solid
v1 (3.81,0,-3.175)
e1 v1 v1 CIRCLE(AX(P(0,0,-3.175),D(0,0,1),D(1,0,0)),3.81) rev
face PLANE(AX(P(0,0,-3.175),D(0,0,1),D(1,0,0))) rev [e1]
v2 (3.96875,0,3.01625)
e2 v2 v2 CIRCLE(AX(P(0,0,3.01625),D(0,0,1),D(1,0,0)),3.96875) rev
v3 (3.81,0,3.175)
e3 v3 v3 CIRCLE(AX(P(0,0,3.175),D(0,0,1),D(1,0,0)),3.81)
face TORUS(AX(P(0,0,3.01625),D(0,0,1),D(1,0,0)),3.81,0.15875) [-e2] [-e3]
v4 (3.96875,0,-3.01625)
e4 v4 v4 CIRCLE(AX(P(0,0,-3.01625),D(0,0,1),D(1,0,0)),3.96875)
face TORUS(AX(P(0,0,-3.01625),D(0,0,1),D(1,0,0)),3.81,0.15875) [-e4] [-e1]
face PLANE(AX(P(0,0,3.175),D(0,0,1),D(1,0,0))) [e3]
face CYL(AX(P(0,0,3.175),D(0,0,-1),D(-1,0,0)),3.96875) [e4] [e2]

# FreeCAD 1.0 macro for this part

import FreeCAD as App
import Part
import Sketcher
Q = App.Units.Quantity


def edges_at(feature, points):
    """Names of the edges that pass closest to the given points."""
    edges = feature.Shape.Edges
    near = lambda p: min(range(len(edges)), key=lambda i: edges[i].distToShape(Part.Vertex(*p))[0])
    return sorted({f"Edge{near(p) + 1}" for p in points})

doc = App.newDocument("Part")
body = doc.addObject("PartDesign::Body", "Body")

sketch1 = body.newObject("Sketcher::SketchObject", "Sketch")
sketch1.AttachmentSupport = (doc.getObject("XY_Plane"), [""])
sketch1.MapMode = "FlatFace"
sketch1.addGeometry(Part.Circle(App.Vector(0, 0, 0), App.Vector(0, 0, 1), 4), False)
sketch1.addConstraint(Sketcher.Constraint("Coincident", 0, 3, -1, 1))
sketch1.addConstraint(Sketcher.Constraint("Diameter", 0, Q("0.3125 in")))
pad1 = body.newObject("PartDesign::Pad", "Pad")
pad1.Profile = sketch1
pad1.Type = "TwoLengths"
pad1.Length = Q("0.125 in")
pad1.Length2 = Q("0.125 in")
doc.recompute()

fillet = body.newObject("PartDesign::Fillet", "Fillet")
fillet.Base = (pad1, edges_at(pad1, [(-3.969, 0, -3.175), (-3.969, 0, 3.175)]))
fillet.Radius = 0.15875

doc.recompute()
